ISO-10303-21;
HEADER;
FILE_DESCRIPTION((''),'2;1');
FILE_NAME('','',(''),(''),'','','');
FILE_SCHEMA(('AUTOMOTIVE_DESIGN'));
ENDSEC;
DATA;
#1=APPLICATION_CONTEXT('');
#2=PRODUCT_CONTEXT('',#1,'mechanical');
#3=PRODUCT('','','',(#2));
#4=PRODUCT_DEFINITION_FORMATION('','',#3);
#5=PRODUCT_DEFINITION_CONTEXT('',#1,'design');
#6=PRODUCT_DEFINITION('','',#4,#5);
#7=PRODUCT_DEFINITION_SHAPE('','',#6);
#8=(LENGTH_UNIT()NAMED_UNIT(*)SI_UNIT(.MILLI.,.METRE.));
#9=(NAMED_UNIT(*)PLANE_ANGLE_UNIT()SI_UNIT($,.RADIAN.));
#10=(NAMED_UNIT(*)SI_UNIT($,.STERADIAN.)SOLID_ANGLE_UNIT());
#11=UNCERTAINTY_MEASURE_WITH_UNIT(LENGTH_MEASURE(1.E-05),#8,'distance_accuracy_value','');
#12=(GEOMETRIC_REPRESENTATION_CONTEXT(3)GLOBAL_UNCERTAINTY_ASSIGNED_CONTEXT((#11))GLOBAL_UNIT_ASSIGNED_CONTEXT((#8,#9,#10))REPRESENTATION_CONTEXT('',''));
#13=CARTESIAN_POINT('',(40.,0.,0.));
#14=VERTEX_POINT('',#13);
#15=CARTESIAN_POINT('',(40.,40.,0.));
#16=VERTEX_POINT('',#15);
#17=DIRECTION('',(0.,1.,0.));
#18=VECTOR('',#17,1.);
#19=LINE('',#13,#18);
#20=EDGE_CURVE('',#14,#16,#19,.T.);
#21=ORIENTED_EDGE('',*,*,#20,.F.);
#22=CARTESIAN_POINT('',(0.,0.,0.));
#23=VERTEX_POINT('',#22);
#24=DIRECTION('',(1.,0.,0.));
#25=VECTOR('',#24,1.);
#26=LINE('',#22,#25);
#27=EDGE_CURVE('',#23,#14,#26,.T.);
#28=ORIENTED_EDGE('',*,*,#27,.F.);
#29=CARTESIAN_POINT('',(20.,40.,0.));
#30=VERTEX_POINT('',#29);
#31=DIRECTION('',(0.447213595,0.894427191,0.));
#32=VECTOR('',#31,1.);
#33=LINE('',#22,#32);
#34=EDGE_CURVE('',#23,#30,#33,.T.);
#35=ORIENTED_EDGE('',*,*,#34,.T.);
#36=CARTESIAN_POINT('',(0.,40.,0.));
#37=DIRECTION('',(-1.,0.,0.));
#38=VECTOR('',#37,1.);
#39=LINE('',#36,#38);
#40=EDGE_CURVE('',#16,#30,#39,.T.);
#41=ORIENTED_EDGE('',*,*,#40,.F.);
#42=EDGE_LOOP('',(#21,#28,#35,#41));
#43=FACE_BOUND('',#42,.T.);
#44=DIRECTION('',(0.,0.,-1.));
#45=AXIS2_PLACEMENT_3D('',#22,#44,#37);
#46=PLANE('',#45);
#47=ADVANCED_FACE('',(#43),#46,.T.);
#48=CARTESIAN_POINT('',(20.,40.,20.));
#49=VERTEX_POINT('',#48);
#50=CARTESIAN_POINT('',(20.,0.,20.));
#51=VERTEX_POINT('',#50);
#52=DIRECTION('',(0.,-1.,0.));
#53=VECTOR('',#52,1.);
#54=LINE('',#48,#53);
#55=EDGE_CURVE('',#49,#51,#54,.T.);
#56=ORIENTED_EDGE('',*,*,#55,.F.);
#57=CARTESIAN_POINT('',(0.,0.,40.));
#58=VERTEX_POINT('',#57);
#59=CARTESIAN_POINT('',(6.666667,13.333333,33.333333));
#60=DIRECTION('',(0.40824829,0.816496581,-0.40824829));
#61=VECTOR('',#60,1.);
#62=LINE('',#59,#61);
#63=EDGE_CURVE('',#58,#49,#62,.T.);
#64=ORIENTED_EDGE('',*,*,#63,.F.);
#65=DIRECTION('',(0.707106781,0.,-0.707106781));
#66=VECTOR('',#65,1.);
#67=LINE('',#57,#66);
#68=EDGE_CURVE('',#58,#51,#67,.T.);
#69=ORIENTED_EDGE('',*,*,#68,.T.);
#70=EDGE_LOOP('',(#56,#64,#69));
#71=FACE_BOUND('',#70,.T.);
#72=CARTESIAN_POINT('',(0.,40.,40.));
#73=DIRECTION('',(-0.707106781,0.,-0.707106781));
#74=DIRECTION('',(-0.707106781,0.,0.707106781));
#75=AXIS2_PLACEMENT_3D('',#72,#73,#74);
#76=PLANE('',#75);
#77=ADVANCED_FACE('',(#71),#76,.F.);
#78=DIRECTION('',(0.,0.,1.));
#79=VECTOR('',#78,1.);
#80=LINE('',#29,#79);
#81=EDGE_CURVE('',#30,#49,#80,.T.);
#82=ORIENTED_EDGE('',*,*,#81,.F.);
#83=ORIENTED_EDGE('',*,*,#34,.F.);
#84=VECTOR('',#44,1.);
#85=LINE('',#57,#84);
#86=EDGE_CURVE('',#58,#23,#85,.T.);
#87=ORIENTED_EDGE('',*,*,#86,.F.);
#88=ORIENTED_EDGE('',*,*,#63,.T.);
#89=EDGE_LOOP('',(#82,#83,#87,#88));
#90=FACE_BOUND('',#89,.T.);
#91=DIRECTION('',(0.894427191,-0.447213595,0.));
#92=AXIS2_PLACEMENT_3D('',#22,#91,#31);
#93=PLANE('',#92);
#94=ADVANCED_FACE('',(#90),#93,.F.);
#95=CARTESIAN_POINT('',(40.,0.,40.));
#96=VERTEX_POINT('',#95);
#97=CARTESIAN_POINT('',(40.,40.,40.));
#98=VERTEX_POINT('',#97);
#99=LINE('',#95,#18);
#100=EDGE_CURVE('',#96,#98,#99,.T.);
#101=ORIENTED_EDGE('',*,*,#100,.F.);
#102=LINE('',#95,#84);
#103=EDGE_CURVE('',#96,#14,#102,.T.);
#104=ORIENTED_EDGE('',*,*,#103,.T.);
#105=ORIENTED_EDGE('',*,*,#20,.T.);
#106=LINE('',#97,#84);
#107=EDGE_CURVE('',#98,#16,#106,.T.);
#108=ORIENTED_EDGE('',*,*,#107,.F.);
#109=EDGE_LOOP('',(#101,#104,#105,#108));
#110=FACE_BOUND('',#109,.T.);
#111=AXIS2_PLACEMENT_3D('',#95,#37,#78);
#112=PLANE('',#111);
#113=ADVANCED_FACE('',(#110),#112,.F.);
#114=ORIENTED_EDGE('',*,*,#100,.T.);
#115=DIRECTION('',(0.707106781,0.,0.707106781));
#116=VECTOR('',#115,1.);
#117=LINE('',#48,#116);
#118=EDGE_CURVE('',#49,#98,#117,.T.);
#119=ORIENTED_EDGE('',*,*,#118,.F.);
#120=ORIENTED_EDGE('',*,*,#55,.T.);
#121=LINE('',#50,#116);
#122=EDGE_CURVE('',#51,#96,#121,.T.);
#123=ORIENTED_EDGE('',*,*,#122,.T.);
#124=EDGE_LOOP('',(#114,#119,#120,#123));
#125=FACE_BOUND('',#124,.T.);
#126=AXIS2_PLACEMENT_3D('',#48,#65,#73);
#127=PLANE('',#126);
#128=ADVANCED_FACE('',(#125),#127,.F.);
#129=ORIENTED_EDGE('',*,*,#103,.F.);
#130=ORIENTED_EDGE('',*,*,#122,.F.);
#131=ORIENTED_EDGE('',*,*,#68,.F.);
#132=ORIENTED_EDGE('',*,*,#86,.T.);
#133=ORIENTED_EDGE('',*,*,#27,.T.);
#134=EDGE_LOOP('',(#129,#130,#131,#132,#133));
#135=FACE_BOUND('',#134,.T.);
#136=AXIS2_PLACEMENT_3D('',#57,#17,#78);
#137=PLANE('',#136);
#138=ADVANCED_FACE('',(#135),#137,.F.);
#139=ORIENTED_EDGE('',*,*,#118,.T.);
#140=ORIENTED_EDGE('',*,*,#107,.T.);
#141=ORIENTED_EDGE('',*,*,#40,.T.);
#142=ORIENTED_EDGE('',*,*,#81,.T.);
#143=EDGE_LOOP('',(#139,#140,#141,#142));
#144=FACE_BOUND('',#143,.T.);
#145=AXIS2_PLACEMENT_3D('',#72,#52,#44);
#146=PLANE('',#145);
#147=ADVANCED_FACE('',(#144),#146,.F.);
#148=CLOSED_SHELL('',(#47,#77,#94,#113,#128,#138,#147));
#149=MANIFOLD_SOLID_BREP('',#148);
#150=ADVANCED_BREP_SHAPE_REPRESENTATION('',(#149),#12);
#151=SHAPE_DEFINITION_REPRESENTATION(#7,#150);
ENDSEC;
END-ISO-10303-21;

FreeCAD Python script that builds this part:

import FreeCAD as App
import Part
import Sketcher

V = App.Vector


def add_polygon(sketch, points):
    """Adds a closed chain of lines whose ends are joined by coincident constraints."""
    first, n = sketch.GeometryCount, len(points)
    for a, b in zip(points, points[1:] + points[:1]):
        sketch.addGeometry(Part.LineSegment(App.Vector(*a, 0), App.Vector(*b, 0)), False)
    for i in range(n):
        sketch.addConstraint(Sketcher.Constraint("Coincident", first + i, 2, first + (i + 1) % n, 1))

doc = App.newDocument("Part")
body = doc.addObject("PartDesign::Body", "Body")

sketch1 = body.newObject("Sketcher::SketchObject", "Sketch")
sketch1.AttachmentSupport = (doc.getObject("XY_Plane"), [""])
sketch1.MapMode = "FlatFace"
add_polygon(sketch1, [(0, 40), (0, 0), (40, 0), (40, 40)])
sketch1.addConstraint(Sketcher.Constraint("Vertical", 0))
sketch1.addConstraint(Sketcher.Constraint("Horizontal", 1))
sketch1.addConstraint(Sketcher.Constraint("Vertical", 2))
sketch1.addConstraint(Sketcher.Constraint("Horizontal", 3))
sketch1.addConstraint(Sketcher.Constraint("Coincident", 0, 2, -1, 1))
sketch1.addConstraint(Sketcher.Constraint("Equal", 3, 0))
sketch1.addConstraint(Sketcher.Constraint("DistanceX", 1, 1, 1, 2, 40.0))
pad1 = body.newObject("PartDesign::Pad", "Pad")
pad1.Profile = sketch1
pad1.Length = 40

sketch2 = body.newObject("Sketcher::SketchObject", "Sketch001")
sketch2.AttachmentSupport = (doc.getObject("XY_Plane"), [""])
sketch2.MapMode = "FlatFace"
sketch2.AttachmentOffset = App.Placement(V(0, 0, 40), App.Rotation())
add_polygon(sketch2, [(0, 0), (20, 40), (0, 40)])
sketch2.addConstraint(Sketcher.Constraint("Horizontal", 1))
sketch2.addConstraint(Sketcher.Constraint("Vertical", 2))
sketch2.addConstraint(Sketcher.Constraint("Coincident", 2, 2, -1, 1))
sketch2.addConstraint(Sketcher.Constraint("DistanceX", 1, 2, 1, 1, 20.0))
sketch2.addConstraint(Sketcher.Constraint("DistanceY", 2, 2, 2, 1, 40.0))
pocket1 = body.newObject("PartDesign::Pocket", "Pocket")
pocket1.Profile = sketch2
pocket1.Length = 40

sketch3 = body.newObject("Sketcher::SketchObject", "Sketch002")
sketch3.AttachmentSupport = (doc.getObject("XZ_Plane"), [""])
sketch3.MapMode = "FlatFace"
add_polygon(sketch3, [(0, 40), (20, 20), (40, 40)])
sketch3.addConstraint(Sketcher.Constraint("Horizontal", 2))
sketch3.addConstraint(Sketcher.Constraint("PointOnObject", 2, 2, -2))
sketch3.addConstraint(Sketcher.Constraint("Perpendicular", 0, 1))
sketch3.addConstraint(Sketcher.Constraint("Equal", 0, 1))
sketch3.addConstraint(Sketcher.Constraint("DistanceX", 2, 2, 2, 1, 40.0))
sketch3.addConstraint(Sketcher.Constraint("DistanceY", -1, 1, 0, 2, 20.0))
pocket2 = body.newObject("PartDesign::Pocket", "Pocket001")
pocket2.Profile = sketch3
pocket2.Length = 40

doc.recompute()
